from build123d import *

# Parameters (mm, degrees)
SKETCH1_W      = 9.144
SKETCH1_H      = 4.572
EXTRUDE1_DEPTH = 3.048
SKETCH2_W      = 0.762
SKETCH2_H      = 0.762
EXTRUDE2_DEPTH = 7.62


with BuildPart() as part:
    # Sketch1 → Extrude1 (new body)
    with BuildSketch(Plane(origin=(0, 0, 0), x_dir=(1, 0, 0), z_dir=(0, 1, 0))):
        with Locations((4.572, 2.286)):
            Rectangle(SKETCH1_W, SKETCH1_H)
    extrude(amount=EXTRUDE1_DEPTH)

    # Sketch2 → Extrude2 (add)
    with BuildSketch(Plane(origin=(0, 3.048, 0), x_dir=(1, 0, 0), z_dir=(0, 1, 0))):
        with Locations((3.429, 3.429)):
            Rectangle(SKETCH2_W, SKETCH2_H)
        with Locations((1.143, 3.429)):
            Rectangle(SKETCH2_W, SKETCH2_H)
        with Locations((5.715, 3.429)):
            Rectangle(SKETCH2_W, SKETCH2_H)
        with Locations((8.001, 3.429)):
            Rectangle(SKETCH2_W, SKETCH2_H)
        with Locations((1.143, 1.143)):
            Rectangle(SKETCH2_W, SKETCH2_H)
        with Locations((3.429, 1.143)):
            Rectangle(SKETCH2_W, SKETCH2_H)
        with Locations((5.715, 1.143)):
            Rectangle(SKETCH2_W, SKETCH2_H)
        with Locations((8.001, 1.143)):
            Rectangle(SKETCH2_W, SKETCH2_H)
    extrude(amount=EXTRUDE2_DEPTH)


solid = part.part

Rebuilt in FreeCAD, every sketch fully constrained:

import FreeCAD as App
import Part
import Sketcher
Q = App.Units.Quantity


def add_polygon(sketch, points):
    """Adds a closed chain of lines whose ends are joined by coincident constraints."""
    first, n = sketch.GeometryCount, len(points)
    for a, b in zip(points, points[1:] + points[:1]):
        sketch.addGeometry(Part.LineSegment(App.Vector(*a, 0), App.Vector(*b, 0)), False)
    for i in range(n):
        sketch.addConstraint(Sketcher.Constraint("Coincident", first + i, 2, first + (i + 1) % n, 1))

doc = App.newDocument("Part")
body = doc.addObject("PartDesign::Body", "Body")

# Sketch on XZ plane
sketch1 = doc.addObject("Sketcher::SketchObject", "Sketch")
body.addObject(sketch1)
sketch1.AttachmentSupport = (doc.XZ_Plane, [""])
sketch1.MapMode = "FlatFace"
add_polygon(sketch1, [(0, -4.572), (0, 0), (9.144, 0), (9.144, -4.572)])  # lines 0-3
sketch1.addConstraint(Sketcher.Constraint("Vertical", 0))
sketch1.addConstraint(Sketcher.Constraint("Horizontal", 1))
sketch1.addConstraint(Sketcher.Constraint("Vertical", 2))
sketch1.addConstraint(Sketcher.Constraint("Horizontal", 3))
sketch1.addConstraint(Sketcher.Constraint("Coincident", 0, 2, -1, 1))
sketch1.addConstraint(Sketcher.Constraint("DistanceX", 1, 1, 1, 2, Q("0.36 in")))
sketch1.addConstraint(Sketcher.Constraint("DistanceY", 0, 1, 0, 2, Q("0.18 in")))
pad1 = doc.addObject("PartDesign::Pad", "Pad")
body.addObject(pad1)
pad1.Profile = sketch1
pad1.Length = Q("0.12 in")
pad1.Reversed = True

# Sketch on XZ plane
sketch2 = doc.addObject("Sketcher::SketchObject", "Sketch001")
body.addObject(sketch2)
sketch2.AttachmentSupport = (doc.XZ_Plane, [""])
sketch2.MapMode = "FlatFace"
sketch2.AttachmentOffset = App.Placement(App.Vector(0, 0, -0.12 * 25.4), App.Rotation())
add_polygon(sketch2, [(3.048, -3.81), (3.048, -3.048), (3.81, -3.048), (3.81, -3.81)])  # lines 0-3
add_polygon(sketch2, [(0.762, -3.81), (0.762, -3.048), (1.524, -3.048), (1.524, -3.81)])  # lines 4-7
add_polygon(sketch2, [(5.334, -3.81), (5.334, -3.048), (6.096, -3.048), (6.096, -3.81)])  # lines 8-11
add_polygon(sketch2, [(7.62, -3.81), (7.62, -3.048), (8.382, -3.048), (8.382, -3.81)])  # lines 12-15
add_polygon(sketch2, [(0.762, -1.524), (0.762, -0.762), (1.524, -0.762), (1.524, -1.524)])  # lines 16-19
add_polygon(sketch2, [(3.048, -1.524), (3.048, -0.762), (3.81, -0.762), (3.81, -1.524)])  # lines 20-23
add_polygon(sketch2, [(5.334, -1.524), (5.334, -0.762), (6.096, -0.762), (6.096, -1.524)])  # lines 24-27
add_polygon(sketch2, [(7.62, -1.524), (7.62, -0.762), (8.382, -0.762), (8.382, -1.524)])  # lines 28-31
sketch2.addConstraint(Sketcher.Constraint("Vertical", 0))
sketch2.addConstraint(Sketcher.Constraint("Horizontal", 1))
sketch2.addConstraint(Sketcher.Constraint("Vertical", 2))
sketch2.addConstraint(Sketcher.Constraint("Horizontal", 3))
sketch2.addConstraint(Sketcher.Constraint("Vertical", 4))
sketch2.addConstraint(Sketcher.Constraint("Horizontal", 5))
sketch2.addConstraint(Sketcher.Constraint("Vertical", 6))
sketch2.addConstraint(Sketcher.Constraint("Horizontal", 7))
sketch2.addConstraint(Sketcher.Constraint("Vertical", 8))
sketch2.addConstraint(Sketcher.Constraint("Horizontal", 9))
sketch2.addConstraint(Sketcher.Constraint("Vertical", 10))
sketch2.addConstraint(Sketcher.Constraint("Horizontal", 11))
sketch2.addConstraint(Sketcher.Constraint("Vertical", 12))
sketch2.addConstraint(Sketcher.Constraint("Horizontal", 13))
sketch2.addConstraint(Sketcher.Constraint("Vertical", 14))
sketch2.addConstraint(Sketcher.Constraint("Horizontal", 15))
sketch2.addConstraint(Sketcher.Constraint("Vertical", 16))
sketch2.addConstraint(Sketcher.Constraint("Horizontal", 17))
sketch2.addConstraint(Sketcher.Constraint("Vertical", 18))
sketch2.addConstraint(Sketcher.Constraint("Horizontal", 19))
sketch2.addConstraint(Sketcher.Constraint("Vertical", 20))
sketch2.addConstraint(Sketcher.Constraint("Horizontal", 21))
sketch2.addConstraint(Sketcher.Constraint("Vertical", 22))
sketch2.addConstraint(Sketcher.Constraint("Horizontal", 23))
sketch2.addConstraint(Sketcher.Constraint("Vertical", 24))
sketch2.addConstraint(Sketcher.Constraint("Horizontal", 25))
sketch2.addConstraint(Sketcher.Constraint("Vertical", 26))
sketch2.addConstraint(Sketcher.Constraint("Horizontal", 27))
sketch2.addConstraint(Sketcher.Constraint("Vertical", 28))
sketch2.addConstraint(Sketcher.Constraint("Horizontal", 29))
sketch2.addConstraint(Sketcher.Constraint("Vertical", 30))
sketch2.addConstraint(Sketcher.Constraint("Horizontal", 31))
sketch2.addConstraint(Sketcher.Constraint("Horizontal", 1, 2, 4, 2))
sketch2.addConstraint(Sketcher.Constraint("Horizontal", 3, 2, 6, 2))
sketch2.addConstraint(Sketcher.Constraint("Horizontal", 5, 2, 8, 2))
sketch2.addConstraint(Sketcher.Constraint("Horizontal", 7, 2, 10, 2))
sketch2.addConstraint(Sketcher.Constraint("Horizontal", 9, 2, 12, 2))
sketch2.addConstraint(Sketcher.Constraint("Horizontal", 11, 2, 14, 2))
sketch2.addConstraint(Sketcher.Constraint("Horizontal", 17, 2, 20, 2))
sketch2.addConstraint(Sketcher.Constraint("Horizontal", 19, 2, 22, 2))
sketch2.addConstraint(Sketcher.Constraint("Horizontal", 21, 2, 24, 2))
sketch2.addConstraint(Sketcher.Constraint("Horizontal", 23, 2, 26, 2))
sketch2.addConstraint(Sketcher.Constraint("Horizontal", 25, 2, 28, 2))
sketch2.addConstraint(Sketcher.Constraint("Horizontal", 27, 2, 30, 2))
sketch2.addConstraint(Sketcher.Constraint("Vertical", 7, 2, 16, 2))
sketch2.addConstraint(Sketcher.Constraint("Vertical", 6, 2, 17, 2))
sketch2.addConstraint(Sketcher.Constraint("Vertical", 3, 2, 20, 2))
sketch2.addConstraint(Sketcher.Constraint("Vertical", 2, 2, 21, 2))
sketch2.addConstraint(Sketcher.Constraint("Vertical", 11, 2, 24, 2))
sketch2.addConstraint(Sketcher.Constraint("Vertical", 10, 2, 25, 2))
sketch2.addConstraint(Sketcher.Constraint("Vertical", 15, 2, 28, 2))
sketch2.addConstraint(Sketcher.Constraint("Vertical", 14, 2, 29, 2))
sketch2.addConstraint(Sketcher.Constraint("Equal", 3, 5))
sketch2.addConstraint(Sketcher.Constraint("Equal", 7, 9))
sketch2.addConstraint(Sketcher.Constraint("Equal", 11, 13))
sketch2.addConstraint(Sketcher.Constraint("Equal", 31, 0))
sketch2.addConstraint(Sketcher.Constraint("Equal", 14, 16))
sketch2.addConstraint(Sketcher.Constraint("DistanceX", 1, 1, 1, 2, Q("0.03 in")))
sketch2.addConstraint(Sketcher.Constraint("DistanceX", -1, 1, 12, 2, Q("0.3 in")))
sketch2.addConstraint(Sketcher.Constraint("DistanceX", -1, 1, 0, 2, Q("0.12 in")))
sketch2.addConstraint(Sketcher.Constraint("DistanceY", 0, 2, -1, 1, Q("0.12 in")))
sketch2.addConstraint(Sketcher.Constraint("DistanceX", -1, 1, 4, 2, Q("0.03 in")))
sketch2.addConstraint(Sketcher.Constraint("DistanceX", -1, 1, 8, 2, Q("0.21 in")))
sketch2.addConstraint(Sketcher.Constraint("DistanceY", 16, 2, -1, 1, Q("0.03 in")))
pad2 = doc.addObject("PartDesign::Pad", "Pad001")
body.addObject(pad2)
pad2.Profile = sketch2
pad2.Length = Q("0.3 in")
pad2.Reversed = True

doc.recompute()
